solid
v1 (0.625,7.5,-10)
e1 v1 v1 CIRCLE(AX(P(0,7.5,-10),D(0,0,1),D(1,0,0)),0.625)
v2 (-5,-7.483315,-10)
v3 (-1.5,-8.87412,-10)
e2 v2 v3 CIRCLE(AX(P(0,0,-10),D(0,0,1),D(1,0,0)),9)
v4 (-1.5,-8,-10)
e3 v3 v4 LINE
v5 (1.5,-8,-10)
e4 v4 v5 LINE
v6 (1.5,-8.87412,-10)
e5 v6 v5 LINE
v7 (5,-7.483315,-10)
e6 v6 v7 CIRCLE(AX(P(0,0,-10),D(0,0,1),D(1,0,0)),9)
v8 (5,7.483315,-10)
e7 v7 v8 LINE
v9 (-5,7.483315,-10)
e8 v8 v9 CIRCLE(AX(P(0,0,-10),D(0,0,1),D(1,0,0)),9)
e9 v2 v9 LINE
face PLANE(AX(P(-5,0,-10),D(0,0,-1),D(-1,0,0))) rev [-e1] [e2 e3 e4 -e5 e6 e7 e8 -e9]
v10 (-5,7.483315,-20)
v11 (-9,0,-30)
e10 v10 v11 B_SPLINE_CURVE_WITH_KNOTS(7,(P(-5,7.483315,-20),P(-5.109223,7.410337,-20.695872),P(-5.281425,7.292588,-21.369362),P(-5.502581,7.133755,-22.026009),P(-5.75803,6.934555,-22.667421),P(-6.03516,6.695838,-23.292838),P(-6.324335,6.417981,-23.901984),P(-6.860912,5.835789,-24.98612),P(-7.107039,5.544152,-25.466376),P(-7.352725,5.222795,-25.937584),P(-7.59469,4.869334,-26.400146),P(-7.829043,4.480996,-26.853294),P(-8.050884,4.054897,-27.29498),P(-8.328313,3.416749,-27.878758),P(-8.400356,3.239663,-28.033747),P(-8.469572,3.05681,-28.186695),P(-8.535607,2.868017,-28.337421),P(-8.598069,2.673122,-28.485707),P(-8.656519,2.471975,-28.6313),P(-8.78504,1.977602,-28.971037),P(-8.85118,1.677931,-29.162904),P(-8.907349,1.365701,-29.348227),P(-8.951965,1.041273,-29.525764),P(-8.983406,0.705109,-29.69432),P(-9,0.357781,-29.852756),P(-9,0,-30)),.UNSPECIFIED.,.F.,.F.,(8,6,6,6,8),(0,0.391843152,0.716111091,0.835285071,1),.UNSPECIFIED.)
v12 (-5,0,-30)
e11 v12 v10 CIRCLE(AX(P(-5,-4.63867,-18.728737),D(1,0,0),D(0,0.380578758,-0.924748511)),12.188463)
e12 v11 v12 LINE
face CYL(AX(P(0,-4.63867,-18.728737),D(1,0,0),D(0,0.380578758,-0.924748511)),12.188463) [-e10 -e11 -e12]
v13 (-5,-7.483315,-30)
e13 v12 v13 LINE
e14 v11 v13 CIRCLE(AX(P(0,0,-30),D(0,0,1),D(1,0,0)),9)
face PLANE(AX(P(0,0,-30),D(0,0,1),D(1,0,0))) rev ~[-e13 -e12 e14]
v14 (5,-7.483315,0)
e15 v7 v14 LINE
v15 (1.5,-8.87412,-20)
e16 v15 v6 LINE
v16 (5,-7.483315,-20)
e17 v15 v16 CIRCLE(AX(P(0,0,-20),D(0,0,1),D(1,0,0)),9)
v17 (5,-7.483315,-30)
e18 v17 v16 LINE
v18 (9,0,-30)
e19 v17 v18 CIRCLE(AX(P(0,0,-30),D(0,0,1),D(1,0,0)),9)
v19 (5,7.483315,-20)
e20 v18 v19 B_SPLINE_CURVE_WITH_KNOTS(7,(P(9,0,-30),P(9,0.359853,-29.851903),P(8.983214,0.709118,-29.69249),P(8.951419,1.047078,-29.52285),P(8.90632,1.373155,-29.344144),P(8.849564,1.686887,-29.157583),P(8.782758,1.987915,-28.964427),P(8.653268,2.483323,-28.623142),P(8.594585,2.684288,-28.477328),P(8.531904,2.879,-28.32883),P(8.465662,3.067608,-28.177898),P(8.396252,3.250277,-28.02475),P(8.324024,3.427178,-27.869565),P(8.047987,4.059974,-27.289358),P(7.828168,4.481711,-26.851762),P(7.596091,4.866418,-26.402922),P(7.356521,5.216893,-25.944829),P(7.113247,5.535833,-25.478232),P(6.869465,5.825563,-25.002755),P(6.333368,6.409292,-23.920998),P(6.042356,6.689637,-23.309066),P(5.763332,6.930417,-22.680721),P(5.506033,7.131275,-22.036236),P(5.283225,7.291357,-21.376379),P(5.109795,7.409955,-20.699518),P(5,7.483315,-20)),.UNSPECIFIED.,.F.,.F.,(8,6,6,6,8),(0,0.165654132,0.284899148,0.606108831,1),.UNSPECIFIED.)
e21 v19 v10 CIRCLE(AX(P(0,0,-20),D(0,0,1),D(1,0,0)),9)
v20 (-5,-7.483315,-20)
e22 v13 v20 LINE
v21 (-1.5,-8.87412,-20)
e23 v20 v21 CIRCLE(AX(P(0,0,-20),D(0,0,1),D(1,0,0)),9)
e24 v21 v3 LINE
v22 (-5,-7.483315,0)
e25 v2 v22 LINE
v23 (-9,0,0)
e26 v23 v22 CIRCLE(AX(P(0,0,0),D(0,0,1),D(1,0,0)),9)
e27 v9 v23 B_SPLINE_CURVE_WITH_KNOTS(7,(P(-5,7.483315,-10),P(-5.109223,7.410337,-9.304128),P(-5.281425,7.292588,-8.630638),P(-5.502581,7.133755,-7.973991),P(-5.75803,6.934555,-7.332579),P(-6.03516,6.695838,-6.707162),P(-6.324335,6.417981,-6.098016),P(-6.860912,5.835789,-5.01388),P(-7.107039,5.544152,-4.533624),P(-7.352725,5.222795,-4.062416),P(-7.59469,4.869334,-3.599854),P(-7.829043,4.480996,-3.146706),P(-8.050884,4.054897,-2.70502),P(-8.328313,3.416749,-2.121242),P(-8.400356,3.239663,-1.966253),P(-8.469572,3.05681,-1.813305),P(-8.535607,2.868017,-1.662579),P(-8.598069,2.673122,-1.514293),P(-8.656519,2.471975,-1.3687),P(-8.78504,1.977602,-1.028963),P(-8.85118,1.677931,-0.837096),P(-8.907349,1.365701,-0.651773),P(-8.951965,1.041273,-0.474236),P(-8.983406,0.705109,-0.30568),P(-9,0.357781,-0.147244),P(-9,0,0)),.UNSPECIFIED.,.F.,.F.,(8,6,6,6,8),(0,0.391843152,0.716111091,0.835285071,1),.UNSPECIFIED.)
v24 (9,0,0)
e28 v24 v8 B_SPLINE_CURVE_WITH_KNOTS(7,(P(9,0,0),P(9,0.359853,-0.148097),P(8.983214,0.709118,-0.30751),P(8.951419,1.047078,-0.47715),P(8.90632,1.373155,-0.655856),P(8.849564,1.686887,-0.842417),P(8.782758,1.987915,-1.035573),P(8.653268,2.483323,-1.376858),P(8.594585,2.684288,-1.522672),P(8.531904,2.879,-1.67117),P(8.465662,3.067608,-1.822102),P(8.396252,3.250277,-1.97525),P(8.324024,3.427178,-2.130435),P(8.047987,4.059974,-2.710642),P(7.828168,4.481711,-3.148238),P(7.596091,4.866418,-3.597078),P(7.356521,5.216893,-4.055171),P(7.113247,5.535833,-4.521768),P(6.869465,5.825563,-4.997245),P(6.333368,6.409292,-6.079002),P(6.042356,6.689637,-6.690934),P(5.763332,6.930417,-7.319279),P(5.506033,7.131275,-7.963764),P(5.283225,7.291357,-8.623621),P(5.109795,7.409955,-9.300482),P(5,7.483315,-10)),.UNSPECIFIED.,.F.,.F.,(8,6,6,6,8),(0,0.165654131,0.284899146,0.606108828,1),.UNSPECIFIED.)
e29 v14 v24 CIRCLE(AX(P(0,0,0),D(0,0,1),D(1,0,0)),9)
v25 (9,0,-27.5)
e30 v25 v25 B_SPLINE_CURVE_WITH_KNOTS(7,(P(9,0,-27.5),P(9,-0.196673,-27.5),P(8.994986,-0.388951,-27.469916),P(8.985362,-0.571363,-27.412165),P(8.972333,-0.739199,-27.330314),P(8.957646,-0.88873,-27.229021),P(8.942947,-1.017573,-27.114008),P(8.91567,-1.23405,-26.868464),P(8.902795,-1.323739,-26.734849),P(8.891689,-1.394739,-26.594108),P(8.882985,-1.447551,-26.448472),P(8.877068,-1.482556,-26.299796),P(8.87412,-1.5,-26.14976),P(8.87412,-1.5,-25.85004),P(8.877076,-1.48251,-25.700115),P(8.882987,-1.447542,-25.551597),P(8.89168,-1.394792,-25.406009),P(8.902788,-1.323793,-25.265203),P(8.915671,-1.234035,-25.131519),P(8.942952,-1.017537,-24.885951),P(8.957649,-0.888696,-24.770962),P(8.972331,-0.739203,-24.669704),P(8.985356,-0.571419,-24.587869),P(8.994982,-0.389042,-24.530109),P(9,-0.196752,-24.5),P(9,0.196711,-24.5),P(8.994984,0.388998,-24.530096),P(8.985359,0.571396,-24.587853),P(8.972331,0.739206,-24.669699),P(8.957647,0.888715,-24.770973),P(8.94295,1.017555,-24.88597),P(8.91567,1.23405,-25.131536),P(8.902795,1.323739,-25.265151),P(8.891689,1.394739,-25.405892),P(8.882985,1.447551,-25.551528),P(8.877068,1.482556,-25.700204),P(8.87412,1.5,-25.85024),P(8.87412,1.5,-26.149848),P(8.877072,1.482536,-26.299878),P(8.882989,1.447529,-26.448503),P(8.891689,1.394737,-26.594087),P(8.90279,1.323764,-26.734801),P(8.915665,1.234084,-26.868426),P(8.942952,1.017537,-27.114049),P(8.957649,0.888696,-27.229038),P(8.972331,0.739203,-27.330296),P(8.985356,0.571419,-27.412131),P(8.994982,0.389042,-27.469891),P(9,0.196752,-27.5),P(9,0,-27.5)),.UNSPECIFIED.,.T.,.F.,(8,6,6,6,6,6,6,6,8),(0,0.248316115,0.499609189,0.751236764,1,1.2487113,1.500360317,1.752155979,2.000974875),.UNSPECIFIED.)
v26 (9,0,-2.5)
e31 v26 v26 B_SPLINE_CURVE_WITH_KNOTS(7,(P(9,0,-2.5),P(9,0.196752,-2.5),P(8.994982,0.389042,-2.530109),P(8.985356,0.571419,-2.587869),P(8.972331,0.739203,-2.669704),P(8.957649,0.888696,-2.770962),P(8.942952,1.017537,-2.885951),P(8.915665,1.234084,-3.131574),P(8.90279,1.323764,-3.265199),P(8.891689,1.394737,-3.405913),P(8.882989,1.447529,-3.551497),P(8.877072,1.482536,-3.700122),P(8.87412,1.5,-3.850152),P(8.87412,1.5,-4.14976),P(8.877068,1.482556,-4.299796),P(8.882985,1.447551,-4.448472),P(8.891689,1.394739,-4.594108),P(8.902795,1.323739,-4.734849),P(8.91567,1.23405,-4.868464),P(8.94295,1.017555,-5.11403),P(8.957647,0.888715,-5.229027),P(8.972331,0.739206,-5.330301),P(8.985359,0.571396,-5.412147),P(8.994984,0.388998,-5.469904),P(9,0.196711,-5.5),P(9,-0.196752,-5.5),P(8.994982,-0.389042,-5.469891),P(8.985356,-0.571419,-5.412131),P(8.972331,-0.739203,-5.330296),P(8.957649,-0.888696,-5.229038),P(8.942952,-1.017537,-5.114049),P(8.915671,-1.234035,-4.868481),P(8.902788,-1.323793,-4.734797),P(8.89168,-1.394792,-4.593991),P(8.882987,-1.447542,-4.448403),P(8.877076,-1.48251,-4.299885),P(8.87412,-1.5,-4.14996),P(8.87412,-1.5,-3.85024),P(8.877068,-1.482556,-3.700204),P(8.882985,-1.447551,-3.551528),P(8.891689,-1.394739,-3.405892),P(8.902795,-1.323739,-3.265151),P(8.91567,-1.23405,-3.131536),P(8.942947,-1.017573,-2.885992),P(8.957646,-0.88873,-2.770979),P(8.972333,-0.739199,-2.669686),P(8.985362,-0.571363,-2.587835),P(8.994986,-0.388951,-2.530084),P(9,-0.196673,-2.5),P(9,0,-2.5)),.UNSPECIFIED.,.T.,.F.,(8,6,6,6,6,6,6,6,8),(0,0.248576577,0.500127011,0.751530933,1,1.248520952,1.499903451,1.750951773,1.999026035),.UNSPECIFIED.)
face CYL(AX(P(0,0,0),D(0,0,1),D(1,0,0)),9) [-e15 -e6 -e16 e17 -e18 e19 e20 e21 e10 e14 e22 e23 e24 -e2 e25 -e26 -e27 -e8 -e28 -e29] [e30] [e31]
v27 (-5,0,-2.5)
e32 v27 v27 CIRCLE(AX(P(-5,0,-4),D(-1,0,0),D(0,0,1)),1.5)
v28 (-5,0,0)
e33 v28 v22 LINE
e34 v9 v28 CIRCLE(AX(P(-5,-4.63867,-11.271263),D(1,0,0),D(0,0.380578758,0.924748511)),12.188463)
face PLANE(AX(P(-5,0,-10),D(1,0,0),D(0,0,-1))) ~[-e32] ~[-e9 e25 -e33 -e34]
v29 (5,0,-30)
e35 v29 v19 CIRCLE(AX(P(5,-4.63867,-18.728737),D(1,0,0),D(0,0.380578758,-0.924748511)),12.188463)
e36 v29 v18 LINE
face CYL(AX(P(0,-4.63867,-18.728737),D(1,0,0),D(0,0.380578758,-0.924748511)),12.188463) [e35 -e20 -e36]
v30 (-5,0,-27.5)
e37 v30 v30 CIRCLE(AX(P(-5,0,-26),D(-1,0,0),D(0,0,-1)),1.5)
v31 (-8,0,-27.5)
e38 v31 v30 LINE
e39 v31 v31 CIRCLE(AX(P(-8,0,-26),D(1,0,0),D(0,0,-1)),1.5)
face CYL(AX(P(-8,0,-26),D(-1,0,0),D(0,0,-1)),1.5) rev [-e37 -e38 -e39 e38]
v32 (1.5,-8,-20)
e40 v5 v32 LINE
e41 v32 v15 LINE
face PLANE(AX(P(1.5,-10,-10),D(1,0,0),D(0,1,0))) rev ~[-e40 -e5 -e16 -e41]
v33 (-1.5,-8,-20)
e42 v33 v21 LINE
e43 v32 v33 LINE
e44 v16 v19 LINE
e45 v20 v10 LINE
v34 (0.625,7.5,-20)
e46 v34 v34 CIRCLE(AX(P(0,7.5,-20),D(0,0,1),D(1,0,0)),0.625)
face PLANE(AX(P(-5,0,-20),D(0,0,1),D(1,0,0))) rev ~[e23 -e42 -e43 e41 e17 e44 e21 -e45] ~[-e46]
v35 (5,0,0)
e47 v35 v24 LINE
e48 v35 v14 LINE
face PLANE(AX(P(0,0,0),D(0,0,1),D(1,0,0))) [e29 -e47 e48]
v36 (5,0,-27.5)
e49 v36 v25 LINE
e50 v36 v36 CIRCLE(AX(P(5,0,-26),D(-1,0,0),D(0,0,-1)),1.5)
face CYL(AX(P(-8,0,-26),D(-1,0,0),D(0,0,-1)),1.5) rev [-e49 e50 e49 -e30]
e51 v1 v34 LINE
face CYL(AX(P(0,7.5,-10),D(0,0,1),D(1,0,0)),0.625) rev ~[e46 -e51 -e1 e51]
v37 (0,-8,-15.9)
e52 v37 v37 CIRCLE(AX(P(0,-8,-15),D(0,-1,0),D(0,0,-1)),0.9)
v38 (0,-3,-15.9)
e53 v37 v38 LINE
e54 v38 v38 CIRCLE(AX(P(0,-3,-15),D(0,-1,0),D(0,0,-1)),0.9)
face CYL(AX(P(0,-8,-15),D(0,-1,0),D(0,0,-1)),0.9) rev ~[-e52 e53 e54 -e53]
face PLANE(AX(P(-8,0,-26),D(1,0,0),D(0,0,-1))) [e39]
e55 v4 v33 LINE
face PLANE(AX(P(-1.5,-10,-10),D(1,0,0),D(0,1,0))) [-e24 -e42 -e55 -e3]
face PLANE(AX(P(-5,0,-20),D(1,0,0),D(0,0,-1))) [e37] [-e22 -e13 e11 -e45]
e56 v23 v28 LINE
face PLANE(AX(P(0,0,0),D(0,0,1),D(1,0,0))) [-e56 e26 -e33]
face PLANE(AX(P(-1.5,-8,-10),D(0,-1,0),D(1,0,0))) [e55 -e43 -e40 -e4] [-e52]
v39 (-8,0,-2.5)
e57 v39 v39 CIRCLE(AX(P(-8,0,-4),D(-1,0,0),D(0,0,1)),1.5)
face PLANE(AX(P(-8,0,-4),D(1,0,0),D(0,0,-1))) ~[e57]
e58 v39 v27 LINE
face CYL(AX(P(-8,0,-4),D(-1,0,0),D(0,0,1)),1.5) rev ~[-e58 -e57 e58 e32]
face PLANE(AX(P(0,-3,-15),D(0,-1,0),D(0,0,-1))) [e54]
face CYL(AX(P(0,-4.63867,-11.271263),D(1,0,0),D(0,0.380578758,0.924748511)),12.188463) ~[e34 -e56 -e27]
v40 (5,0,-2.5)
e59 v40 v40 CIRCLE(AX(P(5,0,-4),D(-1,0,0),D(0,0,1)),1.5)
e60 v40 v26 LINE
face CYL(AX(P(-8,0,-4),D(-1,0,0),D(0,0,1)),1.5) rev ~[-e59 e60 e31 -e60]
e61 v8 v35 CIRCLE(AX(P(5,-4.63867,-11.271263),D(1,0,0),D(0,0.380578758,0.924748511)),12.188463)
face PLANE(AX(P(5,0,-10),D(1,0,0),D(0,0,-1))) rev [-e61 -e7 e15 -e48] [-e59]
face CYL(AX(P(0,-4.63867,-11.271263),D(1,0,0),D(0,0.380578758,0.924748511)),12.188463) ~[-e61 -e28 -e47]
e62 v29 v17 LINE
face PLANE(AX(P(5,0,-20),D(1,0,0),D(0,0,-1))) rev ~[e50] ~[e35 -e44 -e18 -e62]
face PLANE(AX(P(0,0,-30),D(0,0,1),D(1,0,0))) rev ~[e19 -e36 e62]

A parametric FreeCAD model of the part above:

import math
import FreeCAD as App
import Part
import Sketcher
Q = App.Units.Quantity


def add_polygon(sketch, points):
    """Adds a closed chain of lines whose ends are joined by coincident constraints."""
    first, n = sketch.GeometryCount, len(points)
    for a, b in zip(points, points[1:] + points[:1]):
        sketch.addGeometry(Part.LineSegment(App.Vector(*a, 0), App.Vector(*b, 0)), False)
    for i in range(n):
        sketch.addConstraint(Sketcher.Constraint("Coincident", first + i, 2, first + (i + 1) % n, 1))

doc = App.newDocument("Part")
body = doc.addObject("PartDesign::Body", "Body")

# Sketch on XY plane
sketch1 = body.newObject("Sketcher::SketchObject", "Sketch")
sketch1.AttachmentSupport = (doc.getObject("XY_Plane"), [""])
sketch1.MapMode = "FlatFace"
sketch1.addGeometry(Part.Circle(App.Vector(0, 0, 0), App.Vector(0, 0, 1), 9), False)
sketch1.addConstraint(Sketcher.Constraint("Coincident", 0, 3, -1, 1))
sketch1.addConstraint(Sketcher.Constraint("Diameter", 0, Q("18 mm")))
pad1 = body.newObject("PartDesign::Pad", "Pad")
pad1.Profile = sketch1
pad1.Length = 30
pad1.Reversed = True

# Sketch on XZ plane
sketch2 = body.newObject("Sketcher::SketchObject", "Sketch001")
sketch2.AttachmentSupport = (doc.getObject("XZ_Plane"), [""])
sketch2.MapMode = "FlatFace"
add_polygon(sketch2, [(-5, -30), (-5, -20), (5, -20), (5, -30)])  # lines 0-3
sketch2.addConstraint(Sketcher.Constraint("Vertical", 0))
sketch2.addConstraint(Sketcher.Constraint("Horizontal", 1))
sketch2.addConstraint(Sketcher.Constraint("Vertical", 2))
sketch2.addConstraint(Sketcher.Constraint("Horizontal", 3))
sketch2.addConstraint(Sketcher.Constraint("Equal", 3, 0))
sketch2.addConstraint(Sketcher.Constraint("DistanceX", 1, 1, 1, 2, Q("10 mm")))
sketch2.addConstraint(Sketcher.Constraint("DistanceX", 0, 2, -1, 1, Q("5 mm")))
sketch2.addConstraint(Sketcher.Constraint("DistanceY", 0, 2, -1, 1, Q("20 mm")))
pocket1 = body.newObject("PartDesign::Pocket", "Pocket")
pocket1.Profile = sketch2
pocket1.Length = 67.176683
pocket1.Midplane = True

# Sketch on YZ plane
sketch3 = body.newObject("Sketcher::SketchObject", "Sketch002")
sketch3.AttachmentSupport = (doc.getObject("YZ_Plane"), [""])
sketch3.MapMode = "FlatFace"
sketch3.addGeometry(Part.LineSegment(App.Vector(7.483315, -30, 0), App.Vector(7.483315, -20, 0)), False)
sketch3.addGeometry(Part.ArcOfCircle(Part.Circle(App.Vector(-4.63867, -18.728737, 0), App.Vector(0, 0, 1), 12.188463), math.radians(-67.630463), math.radians(-5.986867)), False)
sketch3.addGeometry(Part.LineSegment(App.Vector(0, -30, 0), App.Vector(7.483315, -30, 0)), False)
sketch3.addConstraint(Sketcher.Constraint("Coincident", 0, 2, 1, 2))
sketch3.addConstraint(Sketcher.Constraint("Coincident", 1, 1, 2, 1))
sketch3.addConstraint(Sketcher.Constraint("Coincident", 2, 2, 0, 1))
sketch3.addConstraint(Sketcher.Constraint("Vertical", 0))
sketch3.addConstraint(Sketcher.Constraint("Horizontal", 2))
sketch3.addConstraint(Sketcher.Constraint("PointOnObject", 1, 1, -2))
sketch3.addConstraint(Sketcher.Constraint("DistanceY", 0, 1, 0, 2, Q("10 mm")))
sketch3.addConstraint(Sketcher.Constraint("DistanceY", 0, 2, -1, 1, Q("20 mm")))
sketch3.addConstraint(Sketcher.Constraint("Radius", 1, Q("12.188463 mm")))
sketch3.addConstraint(Sketcher.Constraint("DistanceX", 2, 1, 2, 2, Q("7.483315 mm")))
pocket2 = body.newObject("PartDesign::Pocket", "Pocket001")
pocket2.Profile = sketch3
pocket2.Length = 67.176683
pocket2.Midplane = True

# Sketch on YZ plane
sketch4 = body.newObject("Sketcher::SketchObject", "Sketch003")
sketch4.AttachmentSupport = (doc.getObject("YZ_Plane"), [""])
sketch4.MapMode = "FlatFace"
sketch4.AttachmentOffset = App.Placement(App.Vector(0, 0, -8), App.Rotation())
sketch4.addGeometry(Part.Circle(App.Vector(0, -26, 0), App.Vector(0, 0, 1), 1.5), False)
sketch4.addConstraint(Sketcher.Constraint("PointOnObject", 0, 3, -2))
sketch4.addConstraint(Sketcher.Constraint("Diameter", 0, Q("3 mm")))
sketch4.addConstraint(Sketcher.Constraint("DistanceY", 0, 3, -1, 1, Q("26 mm")))
pocket3 = body.newObject("PartDesign::Pocket", "Pocket002")
pocket3.Profile = sketch4
pocket3.Length = 41.588342
pocket3.Reversed = True
doc.recompute()

datumplane = body.newObject("PartDesign::Plane", "DatumPlane")
datumplane.AttachmentSupport = (doc.getObject("XY_Plane"), [""])
datumplane.MapMode = "FlatFace"
datumplane.AttachmentOffset = App.Placement(App.Vector(0, 0, -15), App.Rotation())
mirrored = body.newObject("PartDesign::Mirrored", "Mirrored")
mirrored.Originals = [pocket1, pocket2, pocket3]
mirrored.MirrorPlane = (datumplane, [""])
body.Tip = mirrored

# Sketch on XY plane
sketch5 = body.newObject("Sketcher::SketchObject", "Sketch004")
sketch5.AttachmentSupport = (doc.getObject("XY_Plane"), [""])
sketch5.MapMode = "FlatFace"
sketch5.AttachmentOffset = App.Placement(App.Vector(0, 0, -10), App.Rotation())
sketch5.addGeometry(Part.Circle(App.Vector(0, 7.5, 0), App.Vector(0, 0, 1), 0.625), False)
sketch5.addConstraint(Sketcher.Constraint("PointOnObject", 0, 3, -2))
sketch5.addConstraint(Sketcher.Constraint("Diameter", 0, Q("1.25 mm")))
sketch5.addConstraint(Sketcher.Constraint("DistanceY", -1, 1, 0, 3, Q("7.5 mm")))
pocket4 = body.newObject("PartDesign::Pocket", "Pocket003")
pocket4.Profile = sketch5
pocket4.Length = 10

# Sketch on XY plane
sketch6 = body.newObject("Sketcher::SketchObject", "Sketch005")
sketch6.AttachmentSupport = (doc.getObject("XY_Plane"), [""])
sketch6.MapMode = "FlatFace"
sketch6.AttachmentOffset = App.Placement(App.Vector(0, 0, -10), App.Rotation())
add_polygon(sketch6, [(-1.5, -8), (-1.5, -10), (1.5, -10), (1.5, -8)])  # lines 0-3
sketch6.addConstraint(Sketcher.Constraint("Vertical", 0))
sketch6.addConstraint(Sketcher.Constraint("Horizontal", 1))
sketch6.addConstraint(Sketcher.Constraint("Vertical", 2))
sketch6.addConstraint(Sketcher.Constraint("Horizontal", 3))
sketch6.addConstraint(Sketcher.Constraint("DistanceX", 1, 1, 1, 2, Q("3 mm")))
sketch6.addConstraint(Sketcher.Constraint("DistanceY", 0, 2, 0, 1, Q("2 mm")))
sketch6.addConstraint(Sketcher.Constraint("DistanceY", 0, 2, -1, 1, Q("10 mm")))
sketch6.addConstraint(Sketcher.Constraint("DistanceX", 0, 2, -1, 1, Q("1.5 mm")))
pocket5 = body.newObject("PartDesign::Pocket", "Pocket004")
pocket5.Profile = sketch6
pocket5.Type = "UpToFirst"

# Sketch on XZ plane
sketch7 = body.newObject("Sketcher::SketchObject", "Sketch006")
sketch7.AttachmentSupport = (doc.getObject("XZ_Plane"), [""])
sketch7.MapMode = "FlatFace"
sketch7.AttachmentOffset = App.Placement(App.Vector(0, 0, 8), App.Rotation())
sketch7.addGeometry(Part.Circle(App.Vector(0, -15, 0), App.Vector(0, 0, 1), 0.9), False)
sketch7.addConstraint(Sketcher.Constraint("PointOnObject", 0, 3, -2))
sketch7.addConstraint(Sketcher.Constraint("Diameter", 0, Q("1.8 mm")))
sketch7.addConstraint(Sketcher.Constraint("DistanceY", 0, 3, -1, 1, Q("15 mm")))
pocket6 = body.newObject("PartDesign::Pocket", "Pocket005")
pocket6.Profile = sketch7
pocket6.Length = 5

doc.recompute()
